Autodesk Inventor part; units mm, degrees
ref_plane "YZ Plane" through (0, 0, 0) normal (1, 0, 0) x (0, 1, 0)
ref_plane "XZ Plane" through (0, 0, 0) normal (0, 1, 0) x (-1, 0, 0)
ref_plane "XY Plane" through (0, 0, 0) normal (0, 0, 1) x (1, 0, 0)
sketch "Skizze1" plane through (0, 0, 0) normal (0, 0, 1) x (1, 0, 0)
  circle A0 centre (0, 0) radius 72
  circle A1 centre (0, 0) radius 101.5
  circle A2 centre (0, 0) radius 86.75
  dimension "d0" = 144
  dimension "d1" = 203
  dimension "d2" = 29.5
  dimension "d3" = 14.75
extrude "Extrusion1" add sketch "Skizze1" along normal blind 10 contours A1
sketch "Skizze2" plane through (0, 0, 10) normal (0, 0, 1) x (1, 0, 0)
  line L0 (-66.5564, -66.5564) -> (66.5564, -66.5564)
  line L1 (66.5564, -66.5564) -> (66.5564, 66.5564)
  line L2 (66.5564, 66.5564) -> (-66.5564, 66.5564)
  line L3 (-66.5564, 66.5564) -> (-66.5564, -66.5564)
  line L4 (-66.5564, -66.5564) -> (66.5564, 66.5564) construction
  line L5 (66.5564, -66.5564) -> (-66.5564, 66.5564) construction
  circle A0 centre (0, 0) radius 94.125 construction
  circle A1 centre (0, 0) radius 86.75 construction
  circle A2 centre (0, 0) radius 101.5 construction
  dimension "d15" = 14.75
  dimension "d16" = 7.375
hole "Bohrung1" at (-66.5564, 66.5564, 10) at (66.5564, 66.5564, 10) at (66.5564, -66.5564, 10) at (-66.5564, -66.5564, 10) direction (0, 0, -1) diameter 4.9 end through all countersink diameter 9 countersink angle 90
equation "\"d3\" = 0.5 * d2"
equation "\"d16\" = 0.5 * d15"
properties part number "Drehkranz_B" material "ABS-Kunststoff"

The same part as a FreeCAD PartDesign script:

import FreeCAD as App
import Part
import Sketcher

V = App.Vector
Q = App.Units.Quantity

doc = App.newDocument("Part")
body = doc.addObject("PartDesign::Body", "Body")

sketch1 = doc.addObject("Sketcher::SketchObject", "Sketch")
body.addObject(sketch1)
sketch1.AttachmentSupport = (doc.XY_Plane, [""])
sketch1.MapMode = "FlatFace"
sketch1.addGeometry(Part.Circle(V(0, 0, 0), V(0, 0, 1), 102), False)
sketch1.addGeometry(Part.Circle(V(0, 0, 0), V(0, 0, 1), 87), False)
sketch1.addConstraint(Sketcher.Constraint("Coincident", 0, 3, -1, 1))
sketch1.addConstraint(Sketcher.Constraint("Coincident", 1, 3, -1, 1))
sketch1.addConstraint(Sketcher.Constraint("Diameter", 0, Q("203 mm")))
sketch1.addConstraint(Sketcher.Constraint("Diameter", 1, Q("173.5 mm")))
pad1 = doc.addObject("PartDesign::Pad", "Pad")
body.addObject(pad1)
pad1.Profile = sketch1
pad1.Length = 10

sketch2 = doc.addObject("Sketcher::SketchObject", "Sketch001")
body.addObject(sketch2)
sketch2.AttachmentSupport = (doc.XY_Plane, [""])
sketch2.MapMode = "FlatFace"
sketch2.AttachmentOffset = App.Placement(V(0, 0, 10), App.Rotation())
sketch2.addGeometry(Part.Circle(V(-66.6, 66.6, 0), V(0, 0, 1), 2.5), False)
sketch2.addGeometry(Part.Circle(V(66.6, 66.6, 0), V(0, 0, 1), 2.5), False)
sketch2.addGeometry(Part.Circle(V(66.6, -66.6, 0), V(0, 0, 1), 2.5), False)
sketch2.addGeometry(Part.Circle(V(-66.6, -66.6, 0), V(0, 0, 1), 2.5), False)
sketch2.addConstraint(Sketcher.Constraint("Equal", 0, 1))
sketch2.addConstraint(Sketcher.Constraint("Equal", 1, 2))
sketch2.addConstraint(Sketcher.Constraint("Equal", 2, 3))
sketch2.addConstraint(Sketcher.Constraint("Symmetric", 0, 3, 2, 3, -1, 1))
sketch2.addConstraint(Sketcher.Constraint("Symmetric", 1, 3, 3, 3, -1, 1))
sketch2.addConstraint(Sketcher.Constraint("Symmetric", 0, 3, 1, 3, -2))
sketch2.addConstraint(Sketcher.Constraint("Diameter", 0, Q("4.9 mm")))
sketch2.addConstraint(Sketcher.Constraint("DistanceX", 0, 3, -1, 1, Q("66.5564 mm")))
sketch2.addConstraint(Sketcher.Constraint("DistanceY", -1, 1, 0, 3, Q("66.5564 mm")))
doc.recompute()
hole = doc.addObject("PartDesign::Hole", "Hole")
body.addObject(hole)
hole.Profile = sketch2
hole.ThreadType = "None"
hole.Diameter = 4.9
hole.DepthType = "ThroughAll"
hole.HoleCutType = "Countersink"
hole.HoleCutDiameter = 9
hole.HoleCutCountersinkAngle = 90

doc.recompute()
